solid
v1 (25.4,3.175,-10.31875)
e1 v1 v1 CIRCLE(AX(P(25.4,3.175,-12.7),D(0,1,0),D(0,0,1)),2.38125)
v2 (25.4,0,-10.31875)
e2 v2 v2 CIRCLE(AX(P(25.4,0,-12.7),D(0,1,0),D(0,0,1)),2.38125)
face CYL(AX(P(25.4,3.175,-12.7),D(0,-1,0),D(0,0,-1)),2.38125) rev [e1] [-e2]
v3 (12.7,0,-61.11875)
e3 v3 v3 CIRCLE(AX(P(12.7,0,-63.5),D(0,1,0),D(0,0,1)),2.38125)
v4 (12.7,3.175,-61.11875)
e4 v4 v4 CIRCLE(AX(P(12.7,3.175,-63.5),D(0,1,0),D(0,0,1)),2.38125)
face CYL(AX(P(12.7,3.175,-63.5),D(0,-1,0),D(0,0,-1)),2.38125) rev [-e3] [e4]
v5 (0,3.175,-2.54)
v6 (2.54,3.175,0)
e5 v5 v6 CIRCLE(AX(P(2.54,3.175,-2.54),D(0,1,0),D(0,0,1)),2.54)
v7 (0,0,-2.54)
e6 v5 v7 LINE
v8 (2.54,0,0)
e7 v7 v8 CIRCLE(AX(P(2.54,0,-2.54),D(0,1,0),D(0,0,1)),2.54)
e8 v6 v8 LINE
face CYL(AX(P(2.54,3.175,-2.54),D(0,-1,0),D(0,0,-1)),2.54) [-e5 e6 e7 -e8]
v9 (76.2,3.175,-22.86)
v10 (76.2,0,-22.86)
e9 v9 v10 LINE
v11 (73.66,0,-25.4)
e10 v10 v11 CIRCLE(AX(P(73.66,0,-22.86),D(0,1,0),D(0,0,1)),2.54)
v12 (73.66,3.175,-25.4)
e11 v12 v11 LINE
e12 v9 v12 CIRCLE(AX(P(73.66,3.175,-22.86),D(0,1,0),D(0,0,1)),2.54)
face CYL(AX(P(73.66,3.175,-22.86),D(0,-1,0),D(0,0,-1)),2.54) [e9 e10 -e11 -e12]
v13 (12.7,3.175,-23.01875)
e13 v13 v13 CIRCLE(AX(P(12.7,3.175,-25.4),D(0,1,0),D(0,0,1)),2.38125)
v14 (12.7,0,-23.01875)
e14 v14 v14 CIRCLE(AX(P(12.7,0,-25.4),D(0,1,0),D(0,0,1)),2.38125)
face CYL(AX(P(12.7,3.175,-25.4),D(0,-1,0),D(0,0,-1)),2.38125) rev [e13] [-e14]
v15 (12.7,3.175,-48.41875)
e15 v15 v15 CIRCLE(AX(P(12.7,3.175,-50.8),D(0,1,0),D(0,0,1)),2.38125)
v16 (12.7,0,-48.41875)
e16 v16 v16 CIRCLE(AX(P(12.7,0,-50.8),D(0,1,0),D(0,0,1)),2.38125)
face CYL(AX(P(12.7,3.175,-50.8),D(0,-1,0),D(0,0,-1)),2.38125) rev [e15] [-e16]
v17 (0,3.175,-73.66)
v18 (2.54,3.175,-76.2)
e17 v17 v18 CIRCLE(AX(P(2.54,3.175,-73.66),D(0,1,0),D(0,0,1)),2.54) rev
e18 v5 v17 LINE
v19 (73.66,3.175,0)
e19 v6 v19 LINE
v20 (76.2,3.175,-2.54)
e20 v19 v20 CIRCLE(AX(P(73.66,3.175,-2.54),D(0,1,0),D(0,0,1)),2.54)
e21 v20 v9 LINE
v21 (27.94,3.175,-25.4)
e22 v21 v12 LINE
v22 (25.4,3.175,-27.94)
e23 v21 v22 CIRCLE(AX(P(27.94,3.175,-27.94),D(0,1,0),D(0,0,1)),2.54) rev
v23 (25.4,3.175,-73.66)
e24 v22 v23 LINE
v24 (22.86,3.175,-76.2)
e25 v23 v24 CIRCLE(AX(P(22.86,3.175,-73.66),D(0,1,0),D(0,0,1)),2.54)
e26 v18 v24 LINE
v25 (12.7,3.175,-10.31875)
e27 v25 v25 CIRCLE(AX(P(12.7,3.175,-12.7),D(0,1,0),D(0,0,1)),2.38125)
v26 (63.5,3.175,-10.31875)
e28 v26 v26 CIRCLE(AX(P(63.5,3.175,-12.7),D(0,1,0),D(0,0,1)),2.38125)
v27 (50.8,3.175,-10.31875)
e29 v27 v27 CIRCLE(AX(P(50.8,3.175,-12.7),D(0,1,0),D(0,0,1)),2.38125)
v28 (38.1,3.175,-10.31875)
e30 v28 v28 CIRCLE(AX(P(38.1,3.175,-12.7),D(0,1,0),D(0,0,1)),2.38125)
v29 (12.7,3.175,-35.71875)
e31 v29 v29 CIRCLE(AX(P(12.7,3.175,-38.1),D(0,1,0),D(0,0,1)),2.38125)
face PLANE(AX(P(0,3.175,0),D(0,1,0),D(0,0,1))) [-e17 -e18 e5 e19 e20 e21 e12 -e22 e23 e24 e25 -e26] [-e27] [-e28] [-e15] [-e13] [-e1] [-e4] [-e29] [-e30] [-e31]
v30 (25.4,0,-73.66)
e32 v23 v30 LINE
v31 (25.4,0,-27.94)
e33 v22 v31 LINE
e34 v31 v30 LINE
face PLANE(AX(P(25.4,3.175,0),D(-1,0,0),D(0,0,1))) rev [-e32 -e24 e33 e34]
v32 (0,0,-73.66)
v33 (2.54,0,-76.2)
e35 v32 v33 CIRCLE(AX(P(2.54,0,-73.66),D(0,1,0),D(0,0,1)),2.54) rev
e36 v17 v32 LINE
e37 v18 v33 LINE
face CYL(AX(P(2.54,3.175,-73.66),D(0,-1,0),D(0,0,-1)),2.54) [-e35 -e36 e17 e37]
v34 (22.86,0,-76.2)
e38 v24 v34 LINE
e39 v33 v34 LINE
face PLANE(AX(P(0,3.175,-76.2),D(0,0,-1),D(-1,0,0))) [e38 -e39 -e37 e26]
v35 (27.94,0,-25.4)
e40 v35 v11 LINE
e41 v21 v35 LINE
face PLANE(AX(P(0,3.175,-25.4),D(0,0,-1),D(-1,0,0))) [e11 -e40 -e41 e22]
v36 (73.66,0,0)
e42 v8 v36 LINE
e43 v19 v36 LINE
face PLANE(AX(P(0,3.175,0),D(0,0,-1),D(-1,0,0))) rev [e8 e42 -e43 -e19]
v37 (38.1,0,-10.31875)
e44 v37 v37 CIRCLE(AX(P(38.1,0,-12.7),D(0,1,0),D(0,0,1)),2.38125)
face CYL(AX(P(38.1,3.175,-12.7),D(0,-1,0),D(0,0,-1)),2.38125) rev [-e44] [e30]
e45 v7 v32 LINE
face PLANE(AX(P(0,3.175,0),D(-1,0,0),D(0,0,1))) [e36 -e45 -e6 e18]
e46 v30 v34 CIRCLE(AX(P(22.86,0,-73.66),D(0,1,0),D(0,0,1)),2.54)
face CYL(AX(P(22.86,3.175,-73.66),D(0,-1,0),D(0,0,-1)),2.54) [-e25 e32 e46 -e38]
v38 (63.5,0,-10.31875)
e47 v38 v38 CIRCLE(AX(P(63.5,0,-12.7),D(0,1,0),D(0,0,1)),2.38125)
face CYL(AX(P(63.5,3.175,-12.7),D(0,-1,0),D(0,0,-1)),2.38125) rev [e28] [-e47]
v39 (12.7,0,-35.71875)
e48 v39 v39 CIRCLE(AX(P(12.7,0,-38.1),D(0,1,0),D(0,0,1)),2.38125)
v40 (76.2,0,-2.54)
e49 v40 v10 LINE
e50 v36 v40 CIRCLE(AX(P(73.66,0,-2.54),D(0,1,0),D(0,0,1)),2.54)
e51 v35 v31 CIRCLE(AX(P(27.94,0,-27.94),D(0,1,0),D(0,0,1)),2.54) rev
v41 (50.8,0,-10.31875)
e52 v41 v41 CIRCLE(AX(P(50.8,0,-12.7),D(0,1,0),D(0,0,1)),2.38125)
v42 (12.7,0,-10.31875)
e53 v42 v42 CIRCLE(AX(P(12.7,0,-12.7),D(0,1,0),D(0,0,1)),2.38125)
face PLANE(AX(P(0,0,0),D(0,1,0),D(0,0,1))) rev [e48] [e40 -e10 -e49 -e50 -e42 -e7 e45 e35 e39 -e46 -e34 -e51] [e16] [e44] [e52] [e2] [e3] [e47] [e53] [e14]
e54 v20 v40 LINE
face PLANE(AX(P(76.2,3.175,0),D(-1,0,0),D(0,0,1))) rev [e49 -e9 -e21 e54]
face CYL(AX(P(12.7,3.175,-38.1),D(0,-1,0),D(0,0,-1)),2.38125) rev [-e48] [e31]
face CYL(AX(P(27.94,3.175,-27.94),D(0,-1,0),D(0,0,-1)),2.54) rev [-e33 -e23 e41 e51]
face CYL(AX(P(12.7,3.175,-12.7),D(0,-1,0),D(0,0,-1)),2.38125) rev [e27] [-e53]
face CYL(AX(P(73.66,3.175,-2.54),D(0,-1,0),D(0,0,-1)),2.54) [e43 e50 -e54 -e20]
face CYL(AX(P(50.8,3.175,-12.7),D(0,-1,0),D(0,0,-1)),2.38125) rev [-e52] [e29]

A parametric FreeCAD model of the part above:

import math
import FreeCAD as App
import Part
import Sketcher
from FreeCAD import Vector
Q = App.Units.Quantity

doc = App.newDocument("Part")
body = doc.addObject("PartDesign::Body", "Body")

sketch1 = body.newObject("Sketcher::SketchObject", "Sketch")
sketch1.AttachmentSupport = (doc.getObject("XZ_Plane"), [""])
sketch1.MapMode = "FlatFace"
sketch1.addGeometry([
    Part.ArcOfCircle(Part.Circle(Vector(2.5, -2.5, 0), Vector(0, 0, 1), 2.5), math.radians(90), math.radians(180)),
    Part.LineSegment(Vector(2.5, 0, 0), Vector(73.7, 0, 0)),
    Part.ArcOfCircle(Part.Circle(Vector(73.7, -2.5, 0), Vector(0, 0, 1), 2.5), math.radians(0), math.radians(90)),
    Part.LineSegment(Vector(76.2, -2.5, 0), Vector(76.2, -22.9, 0)),
    Part.ArcOfCircle(Part.Circle(Vector(73.7, -22.9, 0), Vector(0, 0, 1), 2.5), math.radians(-90), math.radians(0)),
    Part.LineSegment(Vector(73.7, -25.4, 0), Vector(27.9, -25.4, 0)),
    Part.ArcOfCircle(Part.Circle(Vector(27.9, -27.9, 0), Vector(0, 0, 1), 2.5), math.radians(90), math.radians(180)),
    Part.LineSegment(Vector(25.4, -27.9, 0), Vector(25.4, -73.7, 0)),
    Part.ArcOfCircle(Part.Circle(Vector(22.9, -73.7, 0), Vector(0, 0, 1), 2.5), math.radians(-90), math.radians(0)),
    Part.LineSegment(Vector(22.9, -76.2, 0), Vector(2.5, -76.2, 0)),
    Part.ArcOfCircle(Part.Circle(Vector(2.5, -73.7, 0), Vector(0, 0, 1), 2.5), math.radians(-180), math.radians(-90)),
    Part.LineSegment(Vector(0, -73.7, 0), Vector(0, -2.5, 0)),
    Part.Circle(Vector(12.7, -12.7, 0), Vector(0, 0, 1), 2.4),
    Part.Circle(Vector(25.4, -12.7, 0), Vector(0, 0, 1), 2.4),
    Part.Circle(Vector(12.7, -25.4, 0), Vector(0, 0, 1), 2.4),
    Part.Circle(Vector(38.1, -12.7, 0), Vector(0, 0, 1), 2.4),
    Part.Circle(Vector(50.8, -12.7, 0), Vector(0, 0, 1), 2.4),
    Part.Circle(Vector(63.5, -12.7, 0), Vector(0, 0, 1), 2.4),
    Part.Circle(Vector(12.7, -38.1, 0), Vector(0, 0, 1), 2.4),
    Part.Circle(Vector(12.7, -50.8, 0), Vector(0, 0, 1), 2.4),
    Part.Circle(Vector(12.7, -63.5, 0), Vector(0, 0, 1), 2.4),
], False)
sketch1.addConstraint([
    Sketcher.Constraint("Tangent", 0, 1, 1, 1),
    Sketcher.Constraint("Tangent", 1, 2, 2, 2),
    Sketcher.Constraint("Tangent", 2, 1, 3, 1),
    Sketcher.Constraint("Tangent", 3, 2, 4, 2),
    Sketcher.Constraint("Tangent", 4, 1, 5, 1),
    Sketcher.Constraint("Tangent", 5, 2, 6, 1),
    Sketcher.Constraint("Tangent", 6, 2, 7, 1),
    Sketcher.Constraint("Tangent", 7, 2, 8, 2),
    Sketcher.Constraint("Tangent", 8, 1, 9, 1),
    Sketcher.Constraint("Tangent", 9, 2, 10, 2),
    Sketcher.Constraint("Tangent", 10, 1, 11, 1),
    Sketcher.Constraint("Tangent", 11, 2, 0, 2),
    Sketcher.Constraint("Horizontal", 1),
    Sketcher.Constraint("Vertical", 3),
    Sketcher.Constraint("Horizontal", 5),
    Sketcher.Constraint("Vertical", 7),
    Sketcher.Constraint("Horizontal", 9),
    Sketcher.Constraint("Vertical", 11),
    Sketcher.Constraint("Equal", 0, 2),
    Sketcher.Constraint("Equal", 2, 4),
    Sketcher.Constraint("Equal", 4, 6),
    Sketcher.Constraint("Equal", 6, 8),
    Sketcher.Constraint("Equal", 8, 10),
    Sketcher.Constraint("Equal", 12, 13),
    Sketcher.Constraint("Equal", 13, 14),
    Sketcher.Constraint("Equal", 14, 15),
    Sketcher.Constraint("Equal", 15, 16),
    Sketcher.Constraint("Equal", 16, 17),
    Sketcher.Constraint("Equal", 17, 18),
    Sketcher.Constraint("Equal", 18, 19),
    Sketcher.Constraint("Equal", 19, 20),
    Sketcher.Constraint("PointOnObject", 0, 1, -1),
    Sketcher.Constraint("PointOnObject", 10, 1, -2),
    Sketcher.Constraint("Horizontal", 12, 3, 13, 3),
    Sketcher.Constraint("Horizontal", 13, 3, 15, 3),
    Sketcher.Constraint("Horizontal", 15, 3, 16, 3),
    Sketcher.Constraint("Horizontal", 16, 3, 17, 3),
    Sketcher.Constraint("Horizontal", 14, 3, 4, 1),
    Sketcher.Constraint("Vertical", 12, 3, 14, 3),
    Sketcher.Constraint("Vertical", 14, 3, 18, 3),
    Sketcher.Constraint("Vertical", 18, 3, 19, 3),
    Sketcher.Constraint("Vertical", 19, 3, 20, 3),
    Sketcher.Constraint("Vertical", 13, 3, 6, 2),
    Sketcher.Constraint("Equal", 9, 3),
    Sketcher.Constraint("Equal", 5, 7),
    Sketcher.Constraint("Radius", 0, Q("0.1 in")),
    Sketcher.Constraint("Diameter", 12, Q("0.1875 in")),
    Sketcher.Constraint("DistanceX", 1, 1, 1, 2, Q("2.8 in")),
    Sketcher.Constraint("DistanceX", 5, 2, 5, 1, Q("1.8 in")),
    Sketcher.Constraint("DistanceX", -1, 1, 16, 3, Q("2 in")),
    Sketcher.Constraint("DistanceY", 19, 3, -1, 1, Q("2 in")),
    Sketcher.Constraint("DistanceX", 12, 3, 15, 3, Q("1 in")),
    Sketcher.Constraint("DistanceX", 15, 3, 17, 3, Q("1 in")),
    Sketcher.Constraint("DistanceY", 18, 3, 12, 3, Q("1 in")),
    Sketcher.Constraint("DistanceY", 20, 3, 18, 3, Q("1 in")),
    Sketcher.Constraint("DistanceX", -1, 1, 12, 3, Q("0.5 in")),
    Sketcher.Constraint("DistanceY", 12, 3, -1, 1, Q("0.5 in")),
])
pad1 = body.newObject("PartDesign::Pad", "Pad")
pad1.Profile = sketch1
pad1.Length = Q("0.125 in")
pad1.Reversed = True

doc.recompute()
